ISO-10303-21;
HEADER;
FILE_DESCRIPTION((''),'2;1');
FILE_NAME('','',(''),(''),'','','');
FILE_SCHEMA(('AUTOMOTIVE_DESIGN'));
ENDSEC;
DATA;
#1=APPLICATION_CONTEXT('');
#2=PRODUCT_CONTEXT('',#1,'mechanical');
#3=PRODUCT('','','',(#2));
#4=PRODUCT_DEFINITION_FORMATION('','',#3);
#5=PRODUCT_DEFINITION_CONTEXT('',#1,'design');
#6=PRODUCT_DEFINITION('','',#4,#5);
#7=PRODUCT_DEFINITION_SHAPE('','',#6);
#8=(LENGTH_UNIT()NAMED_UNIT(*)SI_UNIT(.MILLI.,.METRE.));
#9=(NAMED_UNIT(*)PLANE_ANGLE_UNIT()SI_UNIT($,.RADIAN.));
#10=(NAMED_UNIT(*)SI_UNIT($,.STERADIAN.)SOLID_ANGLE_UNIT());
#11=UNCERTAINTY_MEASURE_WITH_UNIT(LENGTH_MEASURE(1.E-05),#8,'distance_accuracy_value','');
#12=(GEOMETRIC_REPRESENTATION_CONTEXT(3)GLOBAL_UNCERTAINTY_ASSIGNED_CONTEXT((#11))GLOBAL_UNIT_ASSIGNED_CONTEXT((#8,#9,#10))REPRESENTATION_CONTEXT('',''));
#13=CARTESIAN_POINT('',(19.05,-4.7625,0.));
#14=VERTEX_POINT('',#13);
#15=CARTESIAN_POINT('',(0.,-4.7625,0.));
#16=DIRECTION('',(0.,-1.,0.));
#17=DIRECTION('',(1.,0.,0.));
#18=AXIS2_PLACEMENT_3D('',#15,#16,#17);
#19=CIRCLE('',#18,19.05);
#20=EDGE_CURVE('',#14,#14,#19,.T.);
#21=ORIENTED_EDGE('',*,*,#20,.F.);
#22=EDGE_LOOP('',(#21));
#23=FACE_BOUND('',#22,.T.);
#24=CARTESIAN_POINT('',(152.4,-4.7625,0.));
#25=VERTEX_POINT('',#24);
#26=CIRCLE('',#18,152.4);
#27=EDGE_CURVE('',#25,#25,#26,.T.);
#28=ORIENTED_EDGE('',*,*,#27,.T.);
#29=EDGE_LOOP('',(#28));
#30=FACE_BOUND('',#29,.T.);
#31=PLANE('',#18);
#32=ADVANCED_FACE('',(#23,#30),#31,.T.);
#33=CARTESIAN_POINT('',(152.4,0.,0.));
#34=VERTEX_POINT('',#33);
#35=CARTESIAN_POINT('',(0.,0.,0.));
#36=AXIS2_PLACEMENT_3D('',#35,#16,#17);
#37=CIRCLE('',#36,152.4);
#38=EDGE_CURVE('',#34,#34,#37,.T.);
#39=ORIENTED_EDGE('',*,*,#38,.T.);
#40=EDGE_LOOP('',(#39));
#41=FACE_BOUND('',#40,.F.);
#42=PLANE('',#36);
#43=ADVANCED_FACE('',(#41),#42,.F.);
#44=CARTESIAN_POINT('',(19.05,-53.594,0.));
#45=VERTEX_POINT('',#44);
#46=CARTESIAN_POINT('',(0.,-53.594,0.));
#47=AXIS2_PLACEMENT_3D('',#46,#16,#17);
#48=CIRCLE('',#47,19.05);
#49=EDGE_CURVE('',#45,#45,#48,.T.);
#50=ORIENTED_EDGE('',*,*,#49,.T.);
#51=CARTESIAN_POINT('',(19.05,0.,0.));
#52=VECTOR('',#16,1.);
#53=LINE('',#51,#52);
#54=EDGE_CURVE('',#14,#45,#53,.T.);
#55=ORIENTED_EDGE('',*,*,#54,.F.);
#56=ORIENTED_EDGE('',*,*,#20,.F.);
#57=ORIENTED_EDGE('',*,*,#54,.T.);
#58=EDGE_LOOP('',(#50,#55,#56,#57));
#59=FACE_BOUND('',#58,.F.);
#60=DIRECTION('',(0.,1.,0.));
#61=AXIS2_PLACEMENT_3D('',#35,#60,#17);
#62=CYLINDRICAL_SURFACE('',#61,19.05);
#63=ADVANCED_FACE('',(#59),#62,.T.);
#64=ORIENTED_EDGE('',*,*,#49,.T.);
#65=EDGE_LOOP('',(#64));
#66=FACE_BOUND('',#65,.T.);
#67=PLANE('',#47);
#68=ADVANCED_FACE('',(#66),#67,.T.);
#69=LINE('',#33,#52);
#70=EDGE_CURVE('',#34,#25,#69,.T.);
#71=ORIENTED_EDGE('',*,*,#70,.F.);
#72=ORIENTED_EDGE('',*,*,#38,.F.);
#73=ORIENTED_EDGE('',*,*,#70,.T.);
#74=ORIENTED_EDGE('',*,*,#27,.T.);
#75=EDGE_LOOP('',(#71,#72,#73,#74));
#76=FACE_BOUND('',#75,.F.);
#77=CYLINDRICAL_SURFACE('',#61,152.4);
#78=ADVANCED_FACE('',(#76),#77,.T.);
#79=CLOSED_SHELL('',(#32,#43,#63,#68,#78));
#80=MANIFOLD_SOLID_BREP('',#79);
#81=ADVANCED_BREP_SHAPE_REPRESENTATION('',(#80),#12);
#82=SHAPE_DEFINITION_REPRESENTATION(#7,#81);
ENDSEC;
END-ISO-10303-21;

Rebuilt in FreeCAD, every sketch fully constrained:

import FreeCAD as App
import Part
import Sketcher
Q = App.Units.Quantity


def add_polygon(sketch, points):
    """Adds a closed chain of lines whose ends are joined by coincident constraints."""
    first, n = sketch.GeometryCount, len(points)
    for a, b in zip(points, points[1:] + points[:1]):
        sketch.addGeometry(Part.LineSegment(App.Vector(*a, 0), App.Vector(*b, 0)), False)
    for i in range(n):
        sketch.addConstraint(Sketcher.Constraint("Coincident", first + i, 2, first + (i + 1) % n, 1))

doc = App.newDocument("Part")
body = doc.addObject("PartDesign::Body", "Body")

sketch1 = doc.addObject("Sketcher::SketchObject", "Sketch")
body.addObject(sketch1)
sketch1.AttachmentSupport = (doc.XZ_Plane, [""])
sketch1.MapMode = "FlatFace"
sketch1.addGeometry(Part.Circle(App.Vector(0, 0, 0), App.Vector(0, 0, 1), 19), False)
sketch1.addConstraint(Sketcher.Constraint("Coincident", 0, 3, -1, 1))
sketch1.addConstraint(Sketcher.Constraint("Diameter", 0, Q("1.5 in")))
pad1 = doc.addObject("PartDesign::Pad", "Pad")
body.addObject(pad1)
pad1.Profile = sketch1
pad1.Length = Q("2.11 in")

sketch2 = doc.addObject("Sketcher::SketchObject", "Sketch001")
body.addObject(sketch2)
sketch2.AttachmentSupport = (doc.XZ_Plane, [""])
sketch2.MapMode = "FlatFace"
sketch2.addGeometry(Part.Circle(App.Vector(0, 0, 0), App.Vector(0, 0, 1), 152), False)
sketch2.addGeometry(Part.Circle(App.Vector(0, 0, 0), App.Vector(0, 0, 1), 19), False)
sketch2.addConstraint(Sketcher.Constraint("Coincident", 0, 3, -1, 1))
sketch2.addConstraint(Sketcher.Constraint("Coincident", 1, 3, -1, 1))
sketch2.addConstraint(Sketcher.Constraint("Diameter", 0, Q("12 in")))
sketch2.addConstraint(Sketcher.Constraint("Diameter", 1, Q("1.5 in")))
pad2 = doc.addObject("PartDesign::Pad", "Pad001")
body.addObject(pad2)
pad2.Profile = sketch2
pad2.Length = Q("0.1875 in")
body2 = doc.addObject("PartDesign::Body", "Body001")

sketch3 = doc.addObject("Sketcher::SketchObject", "Sketch002")
body2.addObject(sketch3)
sketch3.AttachmentSupport = (doc.getObject("XZ_Plane001"), [""])
sketch3.MapMode = "FlatFace"
add_polygon(sketch3, [(-229, 178), (-229, -178), (229, -178), (229, 178)])
sketch3.addGeometry(Part.Circle(App.Vector(0, 0, 0), App.Vector(0, 0, 1), 152), False)
sketch3.addConstraint(Sketcher.Constraint("Vertical", 0))
sketch3.addConstraint(Sketcher.Constraint("Horizontal", 1))
sketch3.addConstraint(Sketcher.Constraint("Vertical", 2))
sketch3.addConstraint(Sketcher.Constraint("Horizontal", 3))
sketch3.addConstraint(Sketcher.Constraint("Coincident", 4, 3, -1, 1))
sketch3.addConstraint(Sketcher.Constraint("Symmetric", 0, 2, 2, 2, -1, 1))
sketch3.addConstraint(Sketcher.Constraint("Diameter", 4, Q("12 in")))
sketch3.addConstraint(Sketcher.Constraint("DistanceX", 1, 1, 1, 2, Q("18 in")))
sketch3.addConstraint(Sketcher.Constraint("DistanceY", 0, 2, 0, 1, Q("14 in")))
pad3 = doc.addObject("PartDesign::Pad", "Pad002")
body2.addObject(pad3)
pad3.Profile = sketch3
pad3.Length = Q("0.625 in")
body2.Visibility = False

doc.recompute()
